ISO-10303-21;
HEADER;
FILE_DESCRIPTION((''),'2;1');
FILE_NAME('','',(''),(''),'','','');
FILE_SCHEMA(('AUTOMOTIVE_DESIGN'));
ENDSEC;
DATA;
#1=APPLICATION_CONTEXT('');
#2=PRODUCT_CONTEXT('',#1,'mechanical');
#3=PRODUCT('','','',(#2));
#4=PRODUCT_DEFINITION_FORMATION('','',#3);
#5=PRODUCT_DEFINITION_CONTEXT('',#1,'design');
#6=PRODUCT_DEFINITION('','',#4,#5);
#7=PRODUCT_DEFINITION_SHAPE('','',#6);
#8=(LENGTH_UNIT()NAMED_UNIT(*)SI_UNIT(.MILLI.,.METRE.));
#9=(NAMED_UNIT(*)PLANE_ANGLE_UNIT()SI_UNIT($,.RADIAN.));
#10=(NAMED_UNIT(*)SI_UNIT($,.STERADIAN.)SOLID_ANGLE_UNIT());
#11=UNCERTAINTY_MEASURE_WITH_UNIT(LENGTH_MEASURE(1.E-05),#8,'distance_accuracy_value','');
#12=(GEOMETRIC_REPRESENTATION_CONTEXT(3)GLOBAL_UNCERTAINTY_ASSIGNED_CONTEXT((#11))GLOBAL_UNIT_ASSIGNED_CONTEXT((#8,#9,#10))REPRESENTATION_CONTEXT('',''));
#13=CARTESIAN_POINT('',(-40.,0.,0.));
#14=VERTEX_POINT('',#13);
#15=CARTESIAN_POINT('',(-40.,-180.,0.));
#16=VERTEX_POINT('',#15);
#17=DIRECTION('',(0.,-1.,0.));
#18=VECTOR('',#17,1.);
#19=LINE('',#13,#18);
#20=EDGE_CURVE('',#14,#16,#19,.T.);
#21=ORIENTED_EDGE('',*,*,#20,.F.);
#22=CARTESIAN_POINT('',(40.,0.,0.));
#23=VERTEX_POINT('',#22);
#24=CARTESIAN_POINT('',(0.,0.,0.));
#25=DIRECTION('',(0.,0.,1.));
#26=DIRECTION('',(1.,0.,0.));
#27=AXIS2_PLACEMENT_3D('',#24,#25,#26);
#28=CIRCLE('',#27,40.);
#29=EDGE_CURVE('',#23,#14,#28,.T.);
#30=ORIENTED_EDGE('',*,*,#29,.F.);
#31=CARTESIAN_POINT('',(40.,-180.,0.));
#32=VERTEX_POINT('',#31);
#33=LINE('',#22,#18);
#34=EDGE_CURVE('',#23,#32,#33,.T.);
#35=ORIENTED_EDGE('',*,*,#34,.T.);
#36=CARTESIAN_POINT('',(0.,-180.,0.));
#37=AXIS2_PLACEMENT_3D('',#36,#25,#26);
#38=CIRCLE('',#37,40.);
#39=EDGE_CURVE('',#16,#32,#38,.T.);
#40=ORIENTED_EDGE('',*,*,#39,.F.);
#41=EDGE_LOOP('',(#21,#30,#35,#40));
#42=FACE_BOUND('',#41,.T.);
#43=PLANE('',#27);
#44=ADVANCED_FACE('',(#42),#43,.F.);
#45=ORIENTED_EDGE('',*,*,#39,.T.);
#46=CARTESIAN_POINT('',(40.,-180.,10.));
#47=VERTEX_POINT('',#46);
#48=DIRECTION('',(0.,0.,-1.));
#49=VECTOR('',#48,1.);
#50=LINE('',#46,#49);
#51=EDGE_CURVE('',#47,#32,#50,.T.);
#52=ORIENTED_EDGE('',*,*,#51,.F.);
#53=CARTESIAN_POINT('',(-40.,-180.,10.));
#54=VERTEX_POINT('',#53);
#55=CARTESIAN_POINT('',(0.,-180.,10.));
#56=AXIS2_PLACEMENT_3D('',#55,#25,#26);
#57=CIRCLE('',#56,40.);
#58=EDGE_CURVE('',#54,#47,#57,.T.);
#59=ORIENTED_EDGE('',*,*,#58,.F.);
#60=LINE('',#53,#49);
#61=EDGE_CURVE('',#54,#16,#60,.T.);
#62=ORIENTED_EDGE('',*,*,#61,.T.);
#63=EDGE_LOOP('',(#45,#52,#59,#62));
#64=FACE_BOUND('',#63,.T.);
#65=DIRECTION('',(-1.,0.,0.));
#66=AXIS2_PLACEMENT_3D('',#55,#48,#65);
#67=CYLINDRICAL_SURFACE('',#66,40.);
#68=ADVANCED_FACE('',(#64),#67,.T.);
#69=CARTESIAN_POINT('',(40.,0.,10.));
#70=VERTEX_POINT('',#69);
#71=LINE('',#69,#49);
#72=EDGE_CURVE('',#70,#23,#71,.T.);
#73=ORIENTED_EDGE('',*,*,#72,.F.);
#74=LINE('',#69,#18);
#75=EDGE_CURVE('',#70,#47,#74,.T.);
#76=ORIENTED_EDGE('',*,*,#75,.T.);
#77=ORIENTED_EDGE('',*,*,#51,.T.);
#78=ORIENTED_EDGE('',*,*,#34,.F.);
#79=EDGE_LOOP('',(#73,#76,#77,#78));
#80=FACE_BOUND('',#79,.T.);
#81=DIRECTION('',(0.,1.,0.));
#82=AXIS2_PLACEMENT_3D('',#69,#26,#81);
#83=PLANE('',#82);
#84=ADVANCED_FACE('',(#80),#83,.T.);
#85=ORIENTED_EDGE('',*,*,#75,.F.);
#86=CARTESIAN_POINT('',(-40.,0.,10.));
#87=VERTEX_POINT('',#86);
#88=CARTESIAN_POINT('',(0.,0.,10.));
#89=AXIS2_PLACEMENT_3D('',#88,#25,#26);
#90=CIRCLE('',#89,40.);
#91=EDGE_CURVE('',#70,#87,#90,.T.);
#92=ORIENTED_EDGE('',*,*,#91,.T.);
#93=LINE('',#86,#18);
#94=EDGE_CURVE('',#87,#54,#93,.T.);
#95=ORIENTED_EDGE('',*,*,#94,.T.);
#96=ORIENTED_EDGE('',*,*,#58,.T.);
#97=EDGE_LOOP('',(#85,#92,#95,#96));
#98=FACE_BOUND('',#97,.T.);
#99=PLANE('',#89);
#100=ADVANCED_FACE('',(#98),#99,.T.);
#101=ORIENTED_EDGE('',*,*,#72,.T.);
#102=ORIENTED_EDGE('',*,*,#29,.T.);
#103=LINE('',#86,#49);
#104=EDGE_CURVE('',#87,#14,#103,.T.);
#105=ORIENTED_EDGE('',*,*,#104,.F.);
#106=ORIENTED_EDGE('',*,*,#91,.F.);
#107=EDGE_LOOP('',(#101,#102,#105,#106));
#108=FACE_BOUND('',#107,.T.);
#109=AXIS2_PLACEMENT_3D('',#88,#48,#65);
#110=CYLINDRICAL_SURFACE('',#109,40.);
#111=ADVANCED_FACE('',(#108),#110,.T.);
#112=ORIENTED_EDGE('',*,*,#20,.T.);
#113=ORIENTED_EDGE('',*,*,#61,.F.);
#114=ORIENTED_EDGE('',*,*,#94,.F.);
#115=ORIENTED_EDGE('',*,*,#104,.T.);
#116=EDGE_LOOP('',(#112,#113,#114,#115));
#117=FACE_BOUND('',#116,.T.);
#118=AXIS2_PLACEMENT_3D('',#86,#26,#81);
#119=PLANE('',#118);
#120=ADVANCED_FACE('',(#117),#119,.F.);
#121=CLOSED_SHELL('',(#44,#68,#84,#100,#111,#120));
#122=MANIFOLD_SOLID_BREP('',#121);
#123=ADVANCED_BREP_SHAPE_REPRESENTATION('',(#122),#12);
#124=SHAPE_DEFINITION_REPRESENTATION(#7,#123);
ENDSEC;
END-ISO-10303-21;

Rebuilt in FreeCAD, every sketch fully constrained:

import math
import FreeCAD as App
import Part
import Sketcher
Q = App.Units.Quantity

doc = App.newDocument("Part")
body = doc.addObject("PartDesign::Body", "Body")

# Sketch on XY plane
sketch1 = body.newObject("Sketcher::SketchObject", "Sketch")
sketch1.AttachmentSupport = (doc.getObject("XY_Plane"), [""])
sketch1.MapMode = "FlatFace"
sketch1.addGeometry(Part.LineSegment(App.Vector(-40, 0, 0), App.Vector(-40, -180, 0)), False)
sketch1.addGeometry(Part.ArcOfCircle(Part.Circle(App.Vector(0, -180, 0), App.Vector(0, 0, 1), 40), math.radians(180), math.radians(360)), False)
sketch1.addGeometry(Part.LineSegment(App.Vector(40, -180, 0), App.Vector(40, 0, 0)), False)
sketch1.addGeometry(Part.ArcOfCircle(Part.Circle(App.Vector(0, 0, 0), App.Vector(0, 0, 1), 40), math.radians(0), math.radians(180)), False)
sketch1.addConstraint(Sketcher.Constraint("Tangent", 0, 2, 1, 1))
sketch1.addConstraint(Sketcher.Constraint("Tangent", 1, 2, 2, 1))
sketch1.addConstraint(Sketcher.Constraint("Tangent", 2, 2, 3, 1))
sketch1.addConstraint(Sketcher.Constraint("Tangent", 3, 2, 0, 1))
sketch1.addConstraint(Sketcher.Constraint("Vertical", 0))
sketch1.addConstraint(Sketcher.Constraint("Vertical", 2))
sketch1.addConstraint(Sketcher.Constraint("Coincident", 3, 3, -1, 1))
sketch1.addConstraint(Sketcher.Constraint("Radius", 1, Q("40 mm")))
sketch1.addConstraint(Sketcher.Constraint("DistanceY", 0, 2, 0, 1, Q("180 mm")))
pad1 = body.newObject("PartDesign::Pad", "Pad")
pad1.Profile = sketch1
pad1.Length = 10

doc.recompute()
